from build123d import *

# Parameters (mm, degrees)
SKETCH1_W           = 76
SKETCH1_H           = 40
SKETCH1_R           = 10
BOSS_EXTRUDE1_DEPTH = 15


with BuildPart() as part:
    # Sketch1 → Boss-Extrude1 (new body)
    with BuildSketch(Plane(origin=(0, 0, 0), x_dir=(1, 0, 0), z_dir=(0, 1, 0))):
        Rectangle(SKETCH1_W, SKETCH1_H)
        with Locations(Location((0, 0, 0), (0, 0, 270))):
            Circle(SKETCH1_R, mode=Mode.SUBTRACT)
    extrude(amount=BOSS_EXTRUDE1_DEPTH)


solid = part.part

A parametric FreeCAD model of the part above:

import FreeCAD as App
import Part
import Sketcher

V = App.Vector


def add_polygon(sketch, points):
    """Adds a closed chain of lines whose ends are joined by coincident constraints."""
    first, n = sketch.GeometryCount, len(points)
    for a, b in zip(points, points[1:] + points[:1]):
        sketch.addGeometry(Part.LineSegment(App.Vector(*a, 0), App.Vector(*b, 0)), False)
    for i in range(n):
        sketch.addConstraint(Sketcher.Constraint("Coincident", first + i, 2, first + (i + 1) % n, 1))

doc = App.newDocument("Part")
body = doc.addObject("PartDesign::Body", "Body")

# Sketch on XZ plane
sketch1 = body.newObject("Sketcher::SketchObject", "Sketch")
sketch1.AttachmentSupport = (doc.getObject("XZ_Plane"), [""])
sketch1.MapMode = "FlatFace"
add_polygon(sketch1, [(-38, -20), (-38, 20), (38, 20), (38, -20)])  # lines 0-3
sketch1.addGeometry(Part.Circle(V(0, 0, 0), V(0, 0, 1), 10), False)  # 4
sketch1.addConstraint([
    Sketcher.Constraint("Vertical", 0),
    Sketcher.Constraint("Horizontal", 1),
    Sketcher.Constraint("Vertical", 2),
    Sketcher.Constraint("Horizontal", 3),
    Sketcher.Constraint("Coincident", 4, 3, -1, 1),
    Sketcher.Constraint("Symmetric", 0, 2, 2, 2, -1, 1),
    Sketcher.Constraint("Diameter", 4, 20.0),
    Sketcher.Constraint("DistanceX", 1, 1, 1, 2, 76.0),
    Sketcher.Constraint("DistanceY", 0, 1, 0, 2, 40.0),
])
pad1 = body.newObject("PartDesign::Pad", "Pad")
pad1.Profile = sketch1
pad1.Length = 15
pad1.Reversed = True

doc.recompute()
